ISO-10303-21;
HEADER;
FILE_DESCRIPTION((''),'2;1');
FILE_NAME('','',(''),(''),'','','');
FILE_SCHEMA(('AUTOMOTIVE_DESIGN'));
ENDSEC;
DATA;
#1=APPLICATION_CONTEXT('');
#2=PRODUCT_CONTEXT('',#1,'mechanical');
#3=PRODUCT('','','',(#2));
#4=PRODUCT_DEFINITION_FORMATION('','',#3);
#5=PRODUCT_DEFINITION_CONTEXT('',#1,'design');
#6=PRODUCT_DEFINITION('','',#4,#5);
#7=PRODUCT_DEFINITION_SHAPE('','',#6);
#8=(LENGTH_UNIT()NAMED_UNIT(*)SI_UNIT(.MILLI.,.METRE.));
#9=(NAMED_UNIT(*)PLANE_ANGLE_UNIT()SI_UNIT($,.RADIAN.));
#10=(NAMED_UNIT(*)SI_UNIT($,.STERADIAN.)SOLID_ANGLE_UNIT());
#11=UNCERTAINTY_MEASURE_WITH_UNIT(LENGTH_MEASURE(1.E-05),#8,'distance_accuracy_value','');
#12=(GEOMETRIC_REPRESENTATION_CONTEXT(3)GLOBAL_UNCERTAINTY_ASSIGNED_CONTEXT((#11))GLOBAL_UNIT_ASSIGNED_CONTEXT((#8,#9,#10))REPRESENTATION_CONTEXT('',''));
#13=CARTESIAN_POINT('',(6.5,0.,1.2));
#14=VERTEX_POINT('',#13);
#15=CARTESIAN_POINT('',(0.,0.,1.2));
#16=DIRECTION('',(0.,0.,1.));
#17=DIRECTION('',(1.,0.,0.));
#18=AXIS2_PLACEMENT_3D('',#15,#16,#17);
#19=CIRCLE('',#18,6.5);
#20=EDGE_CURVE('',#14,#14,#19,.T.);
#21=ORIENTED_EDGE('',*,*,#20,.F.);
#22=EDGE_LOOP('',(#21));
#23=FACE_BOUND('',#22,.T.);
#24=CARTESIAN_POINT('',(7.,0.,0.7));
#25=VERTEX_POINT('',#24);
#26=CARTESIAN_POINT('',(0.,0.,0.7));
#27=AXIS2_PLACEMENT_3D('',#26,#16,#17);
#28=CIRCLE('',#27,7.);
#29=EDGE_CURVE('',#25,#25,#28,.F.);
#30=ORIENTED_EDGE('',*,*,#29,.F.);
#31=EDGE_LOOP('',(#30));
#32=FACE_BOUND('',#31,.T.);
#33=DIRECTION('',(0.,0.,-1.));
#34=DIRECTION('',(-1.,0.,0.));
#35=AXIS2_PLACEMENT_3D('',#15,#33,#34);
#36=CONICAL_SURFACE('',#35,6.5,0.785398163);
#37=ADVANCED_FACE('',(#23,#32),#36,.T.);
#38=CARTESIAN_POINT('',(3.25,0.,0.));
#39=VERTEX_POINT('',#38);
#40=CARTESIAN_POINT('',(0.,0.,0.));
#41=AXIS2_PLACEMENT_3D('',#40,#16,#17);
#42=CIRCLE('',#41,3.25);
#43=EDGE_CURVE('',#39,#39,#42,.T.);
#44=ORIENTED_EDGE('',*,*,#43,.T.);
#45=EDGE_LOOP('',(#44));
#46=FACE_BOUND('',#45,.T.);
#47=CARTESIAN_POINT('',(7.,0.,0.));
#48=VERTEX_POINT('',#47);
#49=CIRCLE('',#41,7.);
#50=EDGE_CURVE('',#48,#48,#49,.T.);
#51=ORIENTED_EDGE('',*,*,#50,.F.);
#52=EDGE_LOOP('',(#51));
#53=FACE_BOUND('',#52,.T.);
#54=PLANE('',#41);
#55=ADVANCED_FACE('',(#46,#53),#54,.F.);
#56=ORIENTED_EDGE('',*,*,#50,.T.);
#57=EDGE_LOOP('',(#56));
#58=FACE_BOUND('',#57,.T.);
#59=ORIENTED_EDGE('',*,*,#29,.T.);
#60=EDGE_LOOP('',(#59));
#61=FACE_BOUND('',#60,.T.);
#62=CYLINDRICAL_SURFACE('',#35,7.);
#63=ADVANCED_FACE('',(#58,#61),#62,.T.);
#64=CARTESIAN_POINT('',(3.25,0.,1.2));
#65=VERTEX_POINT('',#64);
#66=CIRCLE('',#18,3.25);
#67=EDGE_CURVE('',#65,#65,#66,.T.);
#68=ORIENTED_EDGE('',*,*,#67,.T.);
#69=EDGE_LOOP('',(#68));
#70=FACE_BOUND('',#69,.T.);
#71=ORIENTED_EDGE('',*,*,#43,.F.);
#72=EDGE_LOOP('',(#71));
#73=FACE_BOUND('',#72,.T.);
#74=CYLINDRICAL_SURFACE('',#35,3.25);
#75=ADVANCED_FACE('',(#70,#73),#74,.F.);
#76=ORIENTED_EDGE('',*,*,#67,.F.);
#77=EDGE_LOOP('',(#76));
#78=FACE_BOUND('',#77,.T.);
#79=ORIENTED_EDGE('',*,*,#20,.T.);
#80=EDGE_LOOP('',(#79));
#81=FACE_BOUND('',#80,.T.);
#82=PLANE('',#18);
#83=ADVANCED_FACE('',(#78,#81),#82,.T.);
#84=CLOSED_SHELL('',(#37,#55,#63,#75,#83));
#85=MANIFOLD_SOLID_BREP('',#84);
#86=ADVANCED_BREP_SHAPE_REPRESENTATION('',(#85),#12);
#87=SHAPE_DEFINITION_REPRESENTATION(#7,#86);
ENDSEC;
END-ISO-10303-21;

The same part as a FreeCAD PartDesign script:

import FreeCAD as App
import Part
import Sketcher

V = App.Vector


def edges_at(feature, points):
    """Names of the edges that pass closest to the given points."""
    edges = feature.Shape.Edges
    near = lambda p: min(range(len(edges)), key=lambda i: edges[i].distToShape(Part.Vertex(*p))[0])
    return sorted({f"Edge{near(p) + 1}" for p in points})

doc = App.newDocument("Part")
params = doc.addObject("Spreadsheet::Sheet", "Params")
for row, (alias, value) in enumerate([
    ("sketch1_diameter", "14 mm"),
    ("sketch1_diameter2", "6.5 mm"),
    ("pad1_length", "1.2 mm"),
    ("chamfer_size", "0.5 mm"),
], start=1):
    params.set(f"A{row}", alias)
    params.set(f"B{row}", "=" + value)
    params.setAlias(f"B{row}", alias)

body = doc.addObject("PartDesign::Body", "Body")

sketch1 = body.newObject("Sketcher::SketchObject", "Sketch")
sketch1.AttachmentSupport = (doc.getObject("XY_Plane"), [""])
sketch1.MapMode = "FlatFace"
sketch1.addGeometry(Part.Circle(V(0, 0, 0), V(0, 0, 1), 7), False)
sketch1.addGeometry(Part.Circle(V(0, 0, 0), V(0, 0, 1), 3.2), False)
sketch1.addConstraint(Sketcher.Constraint("Coincident", 0, 3, -1, 1))
sketch1.addConstraint(Sketcher.Constraint("Coincident", 1, 3, -1, 1))
sketch1.addConstraint(Sketcher.Constraint("Diameter", 0, 14.0))
sketch1.addConstraint(Sketcher.Constraint("Diameter", 1, 6.5))
sketch1.setExpression("Constraints[2]", "Params.sketch1_diameter")
sketch1.setExpression("Constraints[3]", "Params.sketch1_diameter2")
pad1 = body.newObject("PartDesign::Pad", "Pad")
pad1.Profile = sketch1
pad1.setExpression("Length", "Params.pad1_length")
doc.recompute()

chamfer = body.newObject("PartDesign::Chamfer", "Chamfer")
chamfer.Base = (pad1, edges_at(pad1, [(-7, 0, 1.2)]))
chamfer.setExpression("Size", "Params.chamfer_size")

doc.recompute()
